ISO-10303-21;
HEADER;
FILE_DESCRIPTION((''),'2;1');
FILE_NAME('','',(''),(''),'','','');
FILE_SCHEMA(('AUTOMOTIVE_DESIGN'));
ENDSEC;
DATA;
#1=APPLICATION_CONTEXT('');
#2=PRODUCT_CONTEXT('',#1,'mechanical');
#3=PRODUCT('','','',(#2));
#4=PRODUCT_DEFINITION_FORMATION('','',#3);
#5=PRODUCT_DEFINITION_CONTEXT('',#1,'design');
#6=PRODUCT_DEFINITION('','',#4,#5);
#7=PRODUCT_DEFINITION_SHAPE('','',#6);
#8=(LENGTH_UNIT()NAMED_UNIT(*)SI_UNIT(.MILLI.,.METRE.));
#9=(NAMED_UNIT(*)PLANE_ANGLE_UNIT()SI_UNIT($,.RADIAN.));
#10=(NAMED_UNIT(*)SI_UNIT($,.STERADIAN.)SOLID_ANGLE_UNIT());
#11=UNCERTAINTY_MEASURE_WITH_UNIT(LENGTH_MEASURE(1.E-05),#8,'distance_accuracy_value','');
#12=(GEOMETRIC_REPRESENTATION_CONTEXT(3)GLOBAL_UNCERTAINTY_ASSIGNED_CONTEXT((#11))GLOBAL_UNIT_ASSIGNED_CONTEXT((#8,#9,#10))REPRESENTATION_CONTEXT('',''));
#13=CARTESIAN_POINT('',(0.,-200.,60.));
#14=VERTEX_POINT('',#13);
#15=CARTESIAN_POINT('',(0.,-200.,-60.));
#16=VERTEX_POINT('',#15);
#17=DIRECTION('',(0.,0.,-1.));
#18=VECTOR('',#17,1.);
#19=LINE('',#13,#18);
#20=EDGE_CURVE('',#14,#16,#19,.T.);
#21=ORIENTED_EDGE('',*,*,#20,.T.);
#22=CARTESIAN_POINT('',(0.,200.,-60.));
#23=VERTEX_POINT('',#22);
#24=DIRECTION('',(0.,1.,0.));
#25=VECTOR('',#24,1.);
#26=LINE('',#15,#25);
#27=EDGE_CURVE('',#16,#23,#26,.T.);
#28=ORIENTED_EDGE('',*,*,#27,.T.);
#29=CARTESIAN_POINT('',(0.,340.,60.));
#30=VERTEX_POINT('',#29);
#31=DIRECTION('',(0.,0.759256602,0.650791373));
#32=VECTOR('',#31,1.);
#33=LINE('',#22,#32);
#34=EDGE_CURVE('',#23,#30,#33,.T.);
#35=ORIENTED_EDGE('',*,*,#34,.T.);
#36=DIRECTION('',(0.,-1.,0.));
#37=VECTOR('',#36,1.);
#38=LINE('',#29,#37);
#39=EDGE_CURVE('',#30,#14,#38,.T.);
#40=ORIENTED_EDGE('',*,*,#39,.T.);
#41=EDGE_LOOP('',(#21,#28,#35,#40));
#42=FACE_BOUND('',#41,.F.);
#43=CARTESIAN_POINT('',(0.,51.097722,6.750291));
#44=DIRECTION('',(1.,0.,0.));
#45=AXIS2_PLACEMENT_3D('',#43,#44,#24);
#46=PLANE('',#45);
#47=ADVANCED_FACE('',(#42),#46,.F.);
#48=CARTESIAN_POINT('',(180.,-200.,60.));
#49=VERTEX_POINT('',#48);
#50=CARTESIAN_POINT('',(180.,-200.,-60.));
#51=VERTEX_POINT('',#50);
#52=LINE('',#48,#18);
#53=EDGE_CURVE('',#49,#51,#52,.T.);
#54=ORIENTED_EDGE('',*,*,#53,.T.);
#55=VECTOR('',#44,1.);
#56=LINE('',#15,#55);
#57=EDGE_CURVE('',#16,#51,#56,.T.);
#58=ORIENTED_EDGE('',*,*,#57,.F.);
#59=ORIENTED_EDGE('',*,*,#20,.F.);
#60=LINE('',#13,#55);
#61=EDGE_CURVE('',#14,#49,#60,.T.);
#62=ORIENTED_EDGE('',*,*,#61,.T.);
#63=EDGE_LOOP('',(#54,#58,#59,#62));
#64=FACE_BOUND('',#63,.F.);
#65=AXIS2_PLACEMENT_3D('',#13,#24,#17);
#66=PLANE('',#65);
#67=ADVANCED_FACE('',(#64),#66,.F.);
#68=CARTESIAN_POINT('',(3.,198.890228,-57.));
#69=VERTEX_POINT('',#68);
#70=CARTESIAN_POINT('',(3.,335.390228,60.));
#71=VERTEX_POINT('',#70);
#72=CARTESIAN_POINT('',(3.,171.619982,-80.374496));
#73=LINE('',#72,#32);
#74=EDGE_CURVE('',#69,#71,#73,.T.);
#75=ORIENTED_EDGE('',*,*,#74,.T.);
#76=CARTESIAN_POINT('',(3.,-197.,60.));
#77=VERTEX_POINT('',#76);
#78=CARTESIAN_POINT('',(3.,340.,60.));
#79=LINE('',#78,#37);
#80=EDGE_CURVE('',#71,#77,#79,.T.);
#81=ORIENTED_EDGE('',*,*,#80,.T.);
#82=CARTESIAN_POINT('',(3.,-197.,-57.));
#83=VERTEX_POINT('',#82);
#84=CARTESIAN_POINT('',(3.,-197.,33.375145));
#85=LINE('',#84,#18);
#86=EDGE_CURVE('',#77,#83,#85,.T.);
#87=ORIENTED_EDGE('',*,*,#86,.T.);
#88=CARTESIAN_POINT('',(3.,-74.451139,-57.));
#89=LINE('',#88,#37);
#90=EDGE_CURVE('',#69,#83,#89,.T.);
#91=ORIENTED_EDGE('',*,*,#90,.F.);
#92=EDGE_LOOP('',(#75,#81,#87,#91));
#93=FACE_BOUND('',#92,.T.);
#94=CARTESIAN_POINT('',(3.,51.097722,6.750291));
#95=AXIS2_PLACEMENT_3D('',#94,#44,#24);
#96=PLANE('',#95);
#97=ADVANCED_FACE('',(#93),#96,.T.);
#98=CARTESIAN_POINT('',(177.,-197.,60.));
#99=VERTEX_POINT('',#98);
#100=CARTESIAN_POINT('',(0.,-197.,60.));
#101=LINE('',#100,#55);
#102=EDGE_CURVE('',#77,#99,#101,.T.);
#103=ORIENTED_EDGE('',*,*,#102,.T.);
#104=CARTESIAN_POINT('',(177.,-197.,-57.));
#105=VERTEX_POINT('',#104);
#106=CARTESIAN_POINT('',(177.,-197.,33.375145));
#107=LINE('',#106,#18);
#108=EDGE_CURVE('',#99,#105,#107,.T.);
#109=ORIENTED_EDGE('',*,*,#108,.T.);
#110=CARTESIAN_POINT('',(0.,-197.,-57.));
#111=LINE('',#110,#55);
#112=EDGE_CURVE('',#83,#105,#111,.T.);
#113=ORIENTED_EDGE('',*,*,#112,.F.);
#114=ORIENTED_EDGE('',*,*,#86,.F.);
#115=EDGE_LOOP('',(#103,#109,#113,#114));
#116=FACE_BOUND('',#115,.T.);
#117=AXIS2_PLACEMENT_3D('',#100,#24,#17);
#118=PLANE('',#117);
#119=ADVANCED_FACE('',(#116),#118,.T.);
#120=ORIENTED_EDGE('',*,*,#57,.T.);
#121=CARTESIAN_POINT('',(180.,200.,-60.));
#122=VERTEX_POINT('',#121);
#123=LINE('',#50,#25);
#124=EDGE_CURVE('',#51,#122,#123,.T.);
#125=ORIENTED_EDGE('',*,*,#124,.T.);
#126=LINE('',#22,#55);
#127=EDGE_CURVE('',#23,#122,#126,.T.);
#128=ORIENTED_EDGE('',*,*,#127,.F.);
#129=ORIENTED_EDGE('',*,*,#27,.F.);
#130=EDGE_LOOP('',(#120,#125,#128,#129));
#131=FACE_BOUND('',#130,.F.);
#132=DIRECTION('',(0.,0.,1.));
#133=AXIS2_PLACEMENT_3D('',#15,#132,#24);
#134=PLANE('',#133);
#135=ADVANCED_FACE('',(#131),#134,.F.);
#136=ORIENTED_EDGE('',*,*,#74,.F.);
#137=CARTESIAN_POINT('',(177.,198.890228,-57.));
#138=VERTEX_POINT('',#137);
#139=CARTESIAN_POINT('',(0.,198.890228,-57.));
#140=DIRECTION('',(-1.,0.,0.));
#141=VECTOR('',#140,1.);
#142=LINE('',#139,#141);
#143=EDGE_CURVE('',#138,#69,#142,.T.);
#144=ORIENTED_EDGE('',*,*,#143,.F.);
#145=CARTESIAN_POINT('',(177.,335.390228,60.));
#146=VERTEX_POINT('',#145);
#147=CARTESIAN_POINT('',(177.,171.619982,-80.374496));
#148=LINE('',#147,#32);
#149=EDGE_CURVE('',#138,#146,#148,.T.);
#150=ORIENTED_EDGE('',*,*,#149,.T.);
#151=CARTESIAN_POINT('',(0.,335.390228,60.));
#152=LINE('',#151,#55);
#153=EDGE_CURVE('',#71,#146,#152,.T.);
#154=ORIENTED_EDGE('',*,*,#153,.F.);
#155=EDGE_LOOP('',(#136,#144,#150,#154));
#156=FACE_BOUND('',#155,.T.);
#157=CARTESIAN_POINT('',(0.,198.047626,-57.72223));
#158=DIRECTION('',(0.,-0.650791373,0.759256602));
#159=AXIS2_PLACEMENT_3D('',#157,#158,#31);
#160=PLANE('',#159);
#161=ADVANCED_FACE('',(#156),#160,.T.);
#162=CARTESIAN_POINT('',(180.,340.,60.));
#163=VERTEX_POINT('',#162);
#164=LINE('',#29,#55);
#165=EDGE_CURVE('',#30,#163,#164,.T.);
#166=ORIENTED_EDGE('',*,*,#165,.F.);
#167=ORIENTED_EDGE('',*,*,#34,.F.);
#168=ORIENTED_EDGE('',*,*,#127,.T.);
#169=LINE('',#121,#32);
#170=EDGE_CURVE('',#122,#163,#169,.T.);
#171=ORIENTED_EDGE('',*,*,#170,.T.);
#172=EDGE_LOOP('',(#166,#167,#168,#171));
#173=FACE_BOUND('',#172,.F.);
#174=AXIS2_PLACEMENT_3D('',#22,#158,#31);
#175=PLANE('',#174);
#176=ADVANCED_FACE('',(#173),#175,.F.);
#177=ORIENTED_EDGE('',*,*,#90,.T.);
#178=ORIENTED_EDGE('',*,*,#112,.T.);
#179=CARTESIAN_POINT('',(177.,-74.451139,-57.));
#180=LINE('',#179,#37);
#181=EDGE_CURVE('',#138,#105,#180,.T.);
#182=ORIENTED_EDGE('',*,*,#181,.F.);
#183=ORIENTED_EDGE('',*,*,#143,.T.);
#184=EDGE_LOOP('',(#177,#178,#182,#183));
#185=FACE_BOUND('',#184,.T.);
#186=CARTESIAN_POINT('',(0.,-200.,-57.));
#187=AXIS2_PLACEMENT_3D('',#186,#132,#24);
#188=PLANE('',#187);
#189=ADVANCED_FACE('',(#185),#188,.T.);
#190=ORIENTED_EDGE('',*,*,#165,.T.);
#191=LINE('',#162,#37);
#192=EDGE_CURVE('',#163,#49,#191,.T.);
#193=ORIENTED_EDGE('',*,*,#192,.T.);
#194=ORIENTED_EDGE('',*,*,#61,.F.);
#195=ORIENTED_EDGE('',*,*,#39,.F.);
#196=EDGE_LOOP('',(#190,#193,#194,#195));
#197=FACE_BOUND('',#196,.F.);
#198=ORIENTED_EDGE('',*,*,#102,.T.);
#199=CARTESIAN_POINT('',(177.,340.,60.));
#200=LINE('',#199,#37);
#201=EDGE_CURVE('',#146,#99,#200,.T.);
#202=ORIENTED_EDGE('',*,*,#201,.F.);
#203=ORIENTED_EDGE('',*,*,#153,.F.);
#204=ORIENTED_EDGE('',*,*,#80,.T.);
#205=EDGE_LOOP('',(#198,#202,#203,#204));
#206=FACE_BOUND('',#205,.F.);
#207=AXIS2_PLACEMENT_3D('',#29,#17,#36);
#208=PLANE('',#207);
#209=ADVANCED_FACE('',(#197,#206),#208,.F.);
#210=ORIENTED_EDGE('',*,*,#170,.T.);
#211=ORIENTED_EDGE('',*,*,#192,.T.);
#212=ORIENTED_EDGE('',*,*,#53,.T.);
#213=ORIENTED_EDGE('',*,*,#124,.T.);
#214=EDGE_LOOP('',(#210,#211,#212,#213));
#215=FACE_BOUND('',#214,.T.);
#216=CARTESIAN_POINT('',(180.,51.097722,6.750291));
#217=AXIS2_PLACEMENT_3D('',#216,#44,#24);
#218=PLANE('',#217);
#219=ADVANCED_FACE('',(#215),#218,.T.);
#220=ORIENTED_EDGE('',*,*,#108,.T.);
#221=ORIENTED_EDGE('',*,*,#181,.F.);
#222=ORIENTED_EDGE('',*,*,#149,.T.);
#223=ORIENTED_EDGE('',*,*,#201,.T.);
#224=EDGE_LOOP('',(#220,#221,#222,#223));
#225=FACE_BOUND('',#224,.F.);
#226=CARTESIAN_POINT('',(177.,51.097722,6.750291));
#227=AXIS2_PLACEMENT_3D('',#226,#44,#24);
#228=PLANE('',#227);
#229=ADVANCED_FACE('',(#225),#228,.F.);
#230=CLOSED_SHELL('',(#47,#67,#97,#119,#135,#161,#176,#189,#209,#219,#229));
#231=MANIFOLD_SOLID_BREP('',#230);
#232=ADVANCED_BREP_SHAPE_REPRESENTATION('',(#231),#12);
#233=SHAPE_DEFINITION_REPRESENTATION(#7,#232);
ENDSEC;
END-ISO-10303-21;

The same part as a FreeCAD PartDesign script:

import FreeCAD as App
import Part
import Sketcher
from FreeCAD import Vector
Q = App.Units.Quantity


def faces_at(feature, points):
    """Names of the faces that lie closest to the given points."""
    faces = feature.Shape.Faces
    near = lambda p: min(range(len(faces)), key=lambda i: faces[i].distToShape(Part.Vertex(*p))[0])
    return sorted({f"Face{near(p) + 1}" for p in points})

doc = App.newDocument("Part")
body = doc.addObject("PartDesign::Body", "Body")

# Sketch on YZ plane
sketch1 = body.newObject("Sketcher::SketchObject", "Sketch")
sketch1.AttachmentSupport = (doc.getObject("YZ_Plane"), [""])
sketch1.MapMode = "FlatFace"
sketch1.addGeometry(Part.LineSegment(Vector(-200, 60, 0), Vector(-200, -60, 0)), False)
sketch1.addGeometry(Part.LineSegment(Vector(-200, -60, 0), Vector(200, -60, 0)), False)
sketch1.addGeometry(Part.LineSegment(Vector(200, -60, 0), Vector(340, 60, 0)), False)
sketch1.addGeometry(Part.LineSegment(Vector(340, 60, 0), Vector(-200, 60, 0)), False)
sketch1.addConstraint(Sketcher.Constraint("Coincident", 0, 2, 1, 1))
sketch1.addConstraint(Sketcher.Constraint("Coincident", 1, 2, 2, 1))
sketch1.addConstraint(Sketcher.Constraint("Coincident", 2, 2, 3, 1))
sketch1.addConstraint(Sketcher.Constraint("Coincident", 3, 2, 0, 1))
sketch1.addConstraint(Sketcher.Constraint("Vertical", 0))
sketch1.addConstraint(Sketcher.Constraint("Horizontal", 1))
sketch1.addConstraint(Sketcher.Constraint("Horizontal", 3))
sketch1.addConstraint(Sketcher.Constraint("Symmetric", 1, 2, 3, 2, -1, 1))
sketch1.addConstraint(Sketcher.Constraint("DistanceX", 1, 1, 1, 2, Q("400 mm")))
sketch1.addConstraint(Sketcher.Constraint("DistanceX", 3, 2, 3, 1, Q("540 mm")))
sketch1.addConstraint(Sketcher.Constraint("DistanceY", 0, 2, 0, 1, Q("120 mm")))
pad1 = body.newObject("PartDesign::Pad", "Pad")
pad1.Profile = sketch1
pad1.Length = 180
doc.recompute()

thickness = body.newObject("PartDesign::Thickness", "Thickness")
thickness.Base = (pad1, faces_at(pad1, [(90, 70, 60)]))
thickness.Value = 3
thickness.Reversed = True
thickness.Join = "Arc"

doc.recompute()
